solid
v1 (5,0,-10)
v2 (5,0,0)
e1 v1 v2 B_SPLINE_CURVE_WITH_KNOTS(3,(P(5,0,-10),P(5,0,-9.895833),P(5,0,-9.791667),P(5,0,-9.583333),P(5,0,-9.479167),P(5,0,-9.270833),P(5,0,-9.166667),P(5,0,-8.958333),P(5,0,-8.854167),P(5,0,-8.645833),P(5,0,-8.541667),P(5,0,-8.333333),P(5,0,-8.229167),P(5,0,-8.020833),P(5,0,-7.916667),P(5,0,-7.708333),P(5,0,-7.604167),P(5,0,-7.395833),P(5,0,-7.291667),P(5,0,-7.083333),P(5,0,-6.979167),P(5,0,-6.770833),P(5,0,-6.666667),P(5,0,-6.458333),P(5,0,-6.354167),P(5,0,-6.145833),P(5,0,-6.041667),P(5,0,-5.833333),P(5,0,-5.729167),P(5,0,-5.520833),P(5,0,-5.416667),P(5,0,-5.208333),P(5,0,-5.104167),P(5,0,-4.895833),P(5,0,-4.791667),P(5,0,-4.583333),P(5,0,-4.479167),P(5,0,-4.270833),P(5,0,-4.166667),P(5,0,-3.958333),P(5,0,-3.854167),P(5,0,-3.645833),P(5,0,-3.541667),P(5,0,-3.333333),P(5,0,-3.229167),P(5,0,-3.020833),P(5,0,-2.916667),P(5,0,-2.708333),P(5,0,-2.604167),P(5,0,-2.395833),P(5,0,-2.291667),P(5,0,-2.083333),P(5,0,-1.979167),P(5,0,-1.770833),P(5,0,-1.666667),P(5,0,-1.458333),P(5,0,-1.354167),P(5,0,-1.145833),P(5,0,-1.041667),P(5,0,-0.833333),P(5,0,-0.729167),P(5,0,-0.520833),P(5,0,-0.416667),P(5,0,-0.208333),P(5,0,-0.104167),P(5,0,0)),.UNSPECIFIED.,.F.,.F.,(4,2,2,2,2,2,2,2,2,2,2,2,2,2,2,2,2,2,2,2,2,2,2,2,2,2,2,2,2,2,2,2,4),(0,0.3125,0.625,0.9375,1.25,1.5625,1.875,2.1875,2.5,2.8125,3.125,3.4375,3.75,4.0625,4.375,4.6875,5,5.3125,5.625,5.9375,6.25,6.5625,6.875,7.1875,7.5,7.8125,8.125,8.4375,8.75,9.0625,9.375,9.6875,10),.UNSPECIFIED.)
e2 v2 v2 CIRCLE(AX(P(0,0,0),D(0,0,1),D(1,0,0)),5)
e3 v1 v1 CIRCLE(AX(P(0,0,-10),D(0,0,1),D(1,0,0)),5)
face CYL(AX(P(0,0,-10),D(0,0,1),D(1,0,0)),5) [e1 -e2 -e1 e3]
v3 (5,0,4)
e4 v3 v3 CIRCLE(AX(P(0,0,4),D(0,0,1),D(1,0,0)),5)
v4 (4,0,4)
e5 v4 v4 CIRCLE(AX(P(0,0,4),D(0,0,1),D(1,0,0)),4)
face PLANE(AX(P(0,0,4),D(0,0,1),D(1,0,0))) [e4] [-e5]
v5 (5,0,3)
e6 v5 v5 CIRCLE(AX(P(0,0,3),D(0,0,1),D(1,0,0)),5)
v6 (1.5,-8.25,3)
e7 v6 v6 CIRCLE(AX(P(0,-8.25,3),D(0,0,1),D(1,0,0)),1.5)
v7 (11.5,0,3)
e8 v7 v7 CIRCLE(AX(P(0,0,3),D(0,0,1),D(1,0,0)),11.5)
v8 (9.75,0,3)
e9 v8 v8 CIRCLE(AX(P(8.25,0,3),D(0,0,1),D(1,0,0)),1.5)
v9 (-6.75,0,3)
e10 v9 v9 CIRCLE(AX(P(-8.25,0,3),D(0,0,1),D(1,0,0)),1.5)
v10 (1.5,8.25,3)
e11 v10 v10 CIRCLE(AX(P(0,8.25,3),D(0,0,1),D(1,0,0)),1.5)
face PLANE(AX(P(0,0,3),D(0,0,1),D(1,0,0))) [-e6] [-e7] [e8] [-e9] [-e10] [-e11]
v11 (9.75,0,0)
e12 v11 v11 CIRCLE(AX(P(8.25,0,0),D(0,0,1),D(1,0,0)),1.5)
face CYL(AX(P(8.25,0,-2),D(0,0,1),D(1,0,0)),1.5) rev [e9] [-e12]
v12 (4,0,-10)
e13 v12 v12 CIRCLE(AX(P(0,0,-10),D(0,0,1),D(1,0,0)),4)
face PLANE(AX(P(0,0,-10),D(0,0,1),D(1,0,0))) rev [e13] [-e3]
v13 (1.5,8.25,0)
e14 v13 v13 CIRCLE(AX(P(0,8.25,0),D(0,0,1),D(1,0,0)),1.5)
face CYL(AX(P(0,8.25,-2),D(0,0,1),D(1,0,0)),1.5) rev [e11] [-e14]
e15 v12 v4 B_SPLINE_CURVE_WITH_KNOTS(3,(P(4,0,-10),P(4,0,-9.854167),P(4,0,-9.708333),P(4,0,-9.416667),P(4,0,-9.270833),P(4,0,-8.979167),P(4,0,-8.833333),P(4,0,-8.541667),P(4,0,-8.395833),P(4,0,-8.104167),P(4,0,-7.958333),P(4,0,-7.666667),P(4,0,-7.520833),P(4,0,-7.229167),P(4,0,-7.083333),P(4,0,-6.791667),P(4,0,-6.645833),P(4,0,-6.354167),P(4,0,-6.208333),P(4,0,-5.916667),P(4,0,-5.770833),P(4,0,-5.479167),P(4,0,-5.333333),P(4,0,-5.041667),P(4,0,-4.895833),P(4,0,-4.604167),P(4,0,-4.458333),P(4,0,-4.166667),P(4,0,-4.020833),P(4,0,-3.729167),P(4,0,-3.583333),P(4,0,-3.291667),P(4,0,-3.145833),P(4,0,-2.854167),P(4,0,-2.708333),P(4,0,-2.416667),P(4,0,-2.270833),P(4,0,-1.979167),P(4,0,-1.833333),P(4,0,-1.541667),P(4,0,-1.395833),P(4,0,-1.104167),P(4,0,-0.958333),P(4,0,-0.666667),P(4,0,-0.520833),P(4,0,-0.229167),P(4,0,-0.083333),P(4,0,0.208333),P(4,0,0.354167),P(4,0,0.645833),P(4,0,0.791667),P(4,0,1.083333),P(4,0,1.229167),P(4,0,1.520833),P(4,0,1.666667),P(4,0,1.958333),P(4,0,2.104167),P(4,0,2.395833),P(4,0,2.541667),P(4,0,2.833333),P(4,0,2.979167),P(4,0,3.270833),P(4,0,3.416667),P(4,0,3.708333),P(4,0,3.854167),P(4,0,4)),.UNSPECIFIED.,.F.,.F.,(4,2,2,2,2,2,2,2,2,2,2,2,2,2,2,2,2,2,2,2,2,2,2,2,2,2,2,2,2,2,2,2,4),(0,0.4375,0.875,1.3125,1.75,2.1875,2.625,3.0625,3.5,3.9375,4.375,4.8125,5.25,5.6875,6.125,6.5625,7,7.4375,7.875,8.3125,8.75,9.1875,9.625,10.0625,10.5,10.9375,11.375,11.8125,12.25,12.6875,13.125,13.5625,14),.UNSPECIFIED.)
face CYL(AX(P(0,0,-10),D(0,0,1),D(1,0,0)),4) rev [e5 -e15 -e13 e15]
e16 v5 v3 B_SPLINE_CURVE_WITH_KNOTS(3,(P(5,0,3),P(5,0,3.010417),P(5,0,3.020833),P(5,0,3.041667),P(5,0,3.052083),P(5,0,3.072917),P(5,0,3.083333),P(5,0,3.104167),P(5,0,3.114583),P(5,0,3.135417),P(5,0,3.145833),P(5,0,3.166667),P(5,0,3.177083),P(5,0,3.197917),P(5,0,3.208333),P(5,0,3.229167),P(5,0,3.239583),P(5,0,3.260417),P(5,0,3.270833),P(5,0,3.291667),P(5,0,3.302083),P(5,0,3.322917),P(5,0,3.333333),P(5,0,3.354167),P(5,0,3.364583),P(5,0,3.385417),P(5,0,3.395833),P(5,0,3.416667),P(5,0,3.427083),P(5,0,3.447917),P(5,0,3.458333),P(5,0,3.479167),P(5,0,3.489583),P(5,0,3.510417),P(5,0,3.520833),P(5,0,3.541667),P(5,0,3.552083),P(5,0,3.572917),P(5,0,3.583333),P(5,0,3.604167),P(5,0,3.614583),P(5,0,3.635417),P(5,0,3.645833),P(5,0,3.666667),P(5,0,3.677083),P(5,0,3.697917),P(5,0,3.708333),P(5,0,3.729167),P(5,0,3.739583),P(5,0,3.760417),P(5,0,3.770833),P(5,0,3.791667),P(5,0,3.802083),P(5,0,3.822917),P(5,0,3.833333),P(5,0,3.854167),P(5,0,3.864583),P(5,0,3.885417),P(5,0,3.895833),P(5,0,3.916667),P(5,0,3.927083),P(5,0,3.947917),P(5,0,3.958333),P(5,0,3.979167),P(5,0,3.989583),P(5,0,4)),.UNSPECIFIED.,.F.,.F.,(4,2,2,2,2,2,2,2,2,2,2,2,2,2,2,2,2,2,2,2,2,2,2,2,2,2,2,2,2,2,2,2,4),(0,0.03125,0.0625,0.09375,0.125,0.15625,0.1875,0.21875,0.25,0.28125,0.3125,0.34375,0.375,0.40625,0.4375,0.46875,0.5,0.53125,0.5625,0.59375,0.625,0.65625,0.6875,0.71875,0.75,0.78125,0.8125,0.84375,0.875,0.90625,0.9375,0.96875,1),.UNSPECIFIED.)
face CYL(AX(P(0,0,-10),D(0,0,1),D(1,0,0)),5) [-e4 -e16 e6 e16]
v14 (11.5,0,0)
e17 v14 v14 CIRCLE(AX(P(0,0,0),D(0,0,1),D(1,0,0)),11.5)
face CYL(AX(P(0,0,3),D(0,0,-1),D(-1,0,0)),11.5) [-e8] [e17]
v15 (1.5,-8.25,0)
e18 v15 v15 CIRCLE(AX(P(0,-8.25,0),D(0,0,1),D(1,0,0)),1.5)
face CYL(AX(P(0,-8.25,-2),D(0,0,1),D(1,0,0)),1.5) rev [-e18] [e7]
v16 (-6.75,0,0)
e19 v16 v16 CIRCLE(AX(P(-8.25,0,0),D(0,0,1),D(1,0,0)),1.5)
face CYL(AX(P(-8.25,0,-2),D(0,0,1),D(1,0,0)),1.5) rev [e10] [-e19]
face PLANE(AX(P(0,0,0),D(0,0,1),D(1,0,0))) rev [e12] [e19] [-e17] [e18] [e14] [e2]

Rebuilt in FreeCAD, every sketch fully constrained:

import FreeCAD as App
import Part
import Sketcher

V = App.Vector

doc = App.newDocument("Part")
body = doc.addObject("PartDesign::Body", "Body")

sketch1 = body.newObject("Sketcher::SketchObject", "Sketch")
sketch1.AttachmentSupport = (doc.getObject("XY_Plane"), [""])
sketch1.MapMode = "FlatFace"
sketch1.addGeometry(Part.Circle(V(0, 0, 0), V(0, 0, 1), 12), False)
sketch1.addConstraint(Sketcher.Constraint("Coincident", 0, 3, -1, 1))
sketch1.addConstraint(Sketcher.Constraint("Diameter", 0, 23.0))
pad1 = body.newObject("PartDesign::Pad", "Pad")
pad1.Profile = sketch1
pad1.Length = 3

sketch2 = body.newObject("Sketcher::SketchObject", "Sketch001")
sketch2.AttachmentSupport = (doc.getObject("XY_Plane"), [""])
sketch2.MapMode = "FlatFace"
sketch2.AttachmentOffset = App.Placement(V(0, 0, 3), App.Rotation())
sketch2.addGeometry(Part.Circle(V(0, 0, 0), V(0, 0, 1), 5), False)
sketch2.addGeometry(Part.Circle(V(0, 0, 0), V(0, 0, 1), 4), False)
sketch2.addConstraint(Sketcher.Constraint("Coincident", 0, 3, -1, 1))
sketch2.addConstraint(Sketcher.Constraint("Coincident", 1, 3, -1, 1))
sketch2.addConstraint(Sketcher.Constraint("Diameter", 0, 10.0))
sketch2.addConstraint(Sketcher.Constraint("Diameter", 1, 8.0))
pad2 = body.newObject("PartDesign::Pad", "Pad001")
pad2.Profile = sketch2
pad2.Type = "TwoLengths"
pad2.Length = 1
pad2.Length2 = 13

sketch3 = body.newObject("Sketcher::SketchObject", "Sketch002")
sketch3.AttachmentSupport = (doc.getObject("XY_Plane"), [""])
sketch3.MapMode = "FlatFace"
sketch3.AttachmentOffset = App.Placement(V(0, 0, 3), App.Rotation())
sketch3.addGeometry(Part.Circle(V(0, 0, 0), V(0, 0, 1), 4), False)
sketch3.addConstraint(Sketcher.Constraint("Coincident", 0, 3, -1, 1))
sketch3.addConstraint(Sketcher.Constraint("Diameter", 0, 8.0))
pocket1 = body.newObject("PartDesign::Pocket", "Pocket")
pocket1.Profile = sketch3
pocket1.Length = 5

sketch4 = body.newObject("Sketcher::SketchObject", "Sketch003")
sketch4.AttachmentSupport = (doc.getObject("XY_Plane"), [""])
sketch4.MapMode = "FlatFace"
sketch4.AttachmentOffset = App.Placement(V(0, 0, 3), App.Rotation())
sketch4.addGeometry(Part.Circle(V(0, 8.2, 0), V(0, 0, 1), 1.5), False)
sketch4.addGeometry(Part.Circle(V(8.2, 0, 0), V(0, 0, 1), 1.5), False)
sketch4.addGeometry(Part.Circle(V(0, -8.2, 0), V(0, 0, 1), 1.5), False)
sketch4.addGeometry(Part.Circle(V(-8.2, 0, 0), V(0, 0, 1), 1.5), False)
sketch4.addConstraint(Sketcher.Constraint("Equal", 0, 1))
sketch4.addConstraint(Sketcher.Constraint("Equal", 1, 2))
sketch4.addConstraint(Sketcher.Constraint("Equal", 2, 3))
sketch4.addConstraint(Sketcher.Constraint("Symmetric", 0, 3, 2, 3, -1, 1))
sketch4.addConstraint(Sketcher.Constraint("Symmetric", 1, 3, 3, 3, -1, 1))
sketch4.addConstraint(Sketcher.Constraint("PointOnObject", 0, 3, -2))
sketch4.addConstraint(Sketcher.Constraint("PointOnObject", 1, 3, -1))
sketch4.addConstraint(Sketcher.Constraint("Diameter", 0, 3.0))
sketch4.addConstraint(Sketcher.Constraint("DistanceY", 2, 3, 0, 3, 16.5))
sketch4.addConstraint(Sketcher.Constraint("DistanceX", 3, 3, 1, 3, 16.5))
pocket2 = body.newObject("PartDesign::Pocket", "Pocket001")
pocket2.Profile = sketch4
pocket2.Length = 5

doc.recompute()
